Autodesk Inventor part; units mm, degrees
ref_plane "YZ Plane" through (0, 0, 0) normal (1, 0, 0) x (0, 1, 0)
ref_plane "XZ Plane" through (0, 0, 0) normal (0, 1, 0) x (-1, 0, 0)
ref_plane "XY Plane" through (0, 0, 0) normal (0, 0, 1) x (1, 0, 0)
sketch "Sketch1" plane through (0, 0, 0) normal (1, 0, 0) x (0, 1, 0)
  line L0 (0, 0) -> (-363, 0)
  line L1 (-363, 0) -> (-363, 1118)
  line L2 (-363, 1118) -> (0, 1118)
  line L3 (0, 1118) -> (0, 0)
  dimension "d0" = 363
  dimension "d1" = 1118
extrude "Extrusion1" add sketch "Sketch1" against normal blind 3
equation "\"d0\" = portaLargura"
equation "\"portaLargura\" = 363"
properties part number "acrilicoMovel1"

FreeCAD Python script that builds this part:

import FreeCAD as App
import Part
import Sketcher
Q = App.Units.Quantity


def add_polygon(sketch, points):
    """Adds a closed chain of lines whose ends are joined by coincident constraints."""
    first, n = sketch.GeometryCount, len(points)
    for a, b in zip(points, points[1:] + points[:1]):
        sketch.addGeometry(Part.LineSegment(App.Vector(*a, 0), App.Vector(*b, 0)), False)
    for i in range(n):
        sketch.addConstraint(Sketcher.Constraint("Coincident", first + i, 2, first + (i + 1) % n, 1))

doc = App.newDocument("Part")
body = doc.addObject("PartDesign::Body", "Body")

# Sketch on YZ plane
sketch1 = body.newObject("Sketcher::SketchObject", "Sketch")
sketch1.AttachmentSupport = (doc.getObject("YZ_Plane"), [""])
sketch1.MapMode = "FlatFace"
add_polygon(sketch1, [(-363, 0), (0, 0), (0, 1118), (-363, 1118)])  # lines 0-3
sketch1.addConstraint([
    Sketcher.Constraint("Horizontal", 0),
    Sketcher.Constraint("Vertical", 1),
    Sketcher.Constraint("Horizontal", 2),
    Sketcher.Constraint("Vertical", 3),
    Sketcher.Constraint("Coincident", 0, 2, -1, 1),
    Sketcher.Constraint("DistanceX", 0, 1, 0, 2, Q("363 mm")),
    Sketcher.Constraint("DistanceY", 1, 1, 1, 2, Q("1118 mm")),
])
pad1 = body.newObject("PartDesign::Pad", "Pad")
pad1.Profile = sketch1
pad1.Length = 3
pad1.Reversed = True

doc.recompute()
